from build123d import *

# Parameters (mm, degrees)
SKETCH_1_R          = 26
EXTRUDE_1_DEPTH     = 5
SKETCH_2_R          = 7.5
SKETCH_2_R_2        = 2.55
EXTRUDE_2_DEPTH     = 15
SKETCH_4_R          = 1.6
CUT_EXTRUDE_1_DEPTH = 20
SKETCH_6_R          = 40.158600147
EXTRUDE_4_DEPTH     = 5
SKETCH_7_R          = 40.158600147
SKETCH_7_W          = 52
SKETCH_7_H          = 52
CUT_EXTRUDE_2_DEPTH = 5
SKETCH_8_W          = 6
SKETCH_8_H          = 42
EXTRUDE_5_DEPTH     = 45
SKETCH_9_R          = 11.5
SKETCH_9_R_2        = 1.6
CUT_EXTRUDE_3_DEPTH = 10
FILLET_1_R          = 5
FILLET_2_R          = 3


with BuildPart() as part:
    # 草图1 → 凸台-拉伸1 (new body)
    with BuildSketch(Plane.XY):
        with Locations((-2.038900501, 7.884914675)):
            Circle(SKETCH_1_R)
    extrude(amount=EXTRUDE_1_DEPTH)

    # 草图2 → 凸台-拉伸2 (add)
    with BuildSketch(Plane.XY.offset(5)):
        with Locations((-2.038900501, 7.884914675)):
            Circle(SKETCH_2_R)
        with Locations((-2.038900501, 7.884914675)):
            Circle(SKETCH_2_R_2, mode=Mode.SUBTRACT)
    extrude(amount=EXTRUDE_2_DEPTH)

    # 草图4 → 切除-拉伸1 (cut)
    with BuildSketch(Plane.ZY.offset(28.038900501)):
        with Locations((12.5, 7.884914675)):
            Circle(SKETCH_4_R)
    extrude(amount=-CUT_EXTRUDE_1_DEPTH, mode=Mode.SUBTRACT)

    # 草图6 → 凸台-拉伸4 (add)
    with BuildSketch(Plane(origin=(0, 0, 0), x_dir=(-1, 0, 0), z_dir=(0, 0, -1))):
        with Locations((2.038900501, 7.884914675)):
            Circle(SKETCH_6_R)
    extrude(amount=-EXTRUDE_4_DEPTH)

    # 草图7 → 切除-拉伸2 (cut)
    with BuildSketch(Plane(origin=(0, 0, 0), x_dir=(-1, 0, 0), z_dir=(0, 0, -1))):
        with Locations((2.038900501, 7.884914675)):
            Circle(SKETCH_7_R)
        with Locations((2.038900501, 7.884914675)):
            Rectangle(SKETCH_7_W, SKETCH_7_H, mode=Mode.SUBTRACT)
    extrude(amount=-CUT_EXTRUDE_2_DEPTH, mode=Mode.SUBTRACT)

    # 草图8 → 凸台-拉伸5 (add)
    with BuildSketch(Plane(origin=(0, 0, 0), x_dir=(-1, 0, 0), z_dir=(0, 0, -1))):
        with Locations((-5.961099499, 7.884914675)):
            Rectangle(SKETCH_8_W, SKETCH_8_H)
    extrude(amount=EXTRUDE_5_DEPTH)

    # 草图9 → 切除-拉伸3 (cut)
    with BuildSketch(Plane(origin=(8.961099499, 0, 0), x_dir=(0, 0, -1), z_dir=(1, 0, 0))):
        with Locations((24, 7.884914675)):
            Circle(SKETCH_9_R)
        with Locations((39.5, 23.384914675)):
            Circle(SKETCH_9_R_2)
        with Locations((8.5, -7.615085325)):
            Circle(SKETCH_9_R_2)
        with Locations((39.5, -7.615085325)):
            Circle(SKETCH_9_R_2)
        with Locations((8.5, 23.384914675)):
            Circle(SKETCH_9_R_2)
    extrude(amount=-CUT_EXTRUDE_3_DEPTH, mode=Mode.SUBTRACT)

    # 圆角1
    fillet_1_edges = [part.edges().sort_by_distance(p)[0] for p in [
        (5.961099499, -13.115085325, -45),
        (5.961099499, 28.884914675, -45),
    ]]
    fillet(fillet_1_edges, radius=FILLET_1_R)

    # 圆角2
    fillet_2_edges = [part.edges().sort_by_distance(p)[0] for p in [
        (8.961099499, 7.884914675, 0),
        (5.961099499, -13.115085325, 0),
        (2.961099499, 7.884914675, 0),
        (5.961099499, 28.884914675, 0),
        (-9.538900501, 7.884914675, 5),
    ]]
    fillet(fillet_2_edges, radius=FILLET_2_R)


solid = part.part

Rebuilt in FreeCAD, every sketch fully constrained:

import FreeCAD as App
import Part
import Sketcher
from FreeCAD import Vector
Q = App.Units.Quantity


def edges_at(feature, points):
    """Names of the edges that pass closest to the given points."""
    edges = feature.Shape.Edges
    near = lambda p: min(range(len(edges)), key=lambda i: edges[i].distToShape(Part.Vertex(*p))[0])
    return sorted({f"Edge{near(p) + 1}" for p in points})

doc = App.newDocument("Part")
body = doc.addObject("PartDesign::Body", "Body")

# Sketch on XY plane
sketch1 = body.newObject("Sketcher::SketchObject", "Sketch")
sketch1.AttachmentSupport = (doc.getObject("XY_Plane"), [""])
sketch1.MapMode = "FlatFace"
sketch1.addGeometry(Part.Circle(Vector(-2, 8, 0), Vector(0, 0, 1), 26), False)
sketch1.addConstraint([
    Sketcher.Constraint("Diameter", 0, Q("52 mm")),
    Sketcher.Constraint("DistanceX", 0, 3, -1, 1, Q("2.038901 mm")),
    Sketcher.Constraint("DistanceY", -1, 1, 0, 3, Q("7.884915 mm")),
])
pad1 = body.newObject("PartDesign::Pad", "Pad")
pad1.Profile = sketch1
pad1.Length = 5

# Sketch on XY plane
sketch2 = body.newObject("Sketcher::SketchObject", "Sketch001")
sketch2.AttachmentSupport = (doc.getObject("XY_Plane"), [""])
sketch2.MapMode = "FlatFace"
sketch2.AttachmentOffset = App.Placement(Vector(0, 0, 5), App.Rotation())
sketch2.addGeometry([
    Part.Circle(Vector(-2, 7.9, 0), Vector(0, 0, 1), 7.5),
    Part.Circle(Vector(-2, 7.9, 0), Vector(0, 0, 1), 2.5),
], False)
sketch2.addConstraint([
    Sketcher.Constraint("Coincident", 1, 3, 0, 3),
    Sketcher.Constraint("Diameter", 0, Q("15 mm")),
    Sketcher.Constraint("Diameter", 1, Q("5.1 mm")),
    Sketcher.Constraint("DistanceX", 0, 3, -1, 1, Q("2.038901 mm")),
    Sketcher.Constraint("DistanceY", -1, 1, 0, 3, Q("7.884915 mm")),
])
pad2 = body.newObject("PartDesign::Pad", "Pad001")
pad2.Profile = sketch2
pad2.Length = 15

# Sketch on YZ plane
sketch3 = body.newObject("Sketcher::SketchObject", "Sketch002")
sketch3.AttachmentSupport = (doc.getObject("YZ_Plane"), [""])
sketch3.MapMode = "FlatFace"
sketch3.AttachmentOffset = App.Placement(Vector(0, 0, -28.038901), App.Rotation())
sketch3.addGeometry(Part.Circle(Vector(7.9, 12.5, 0), Vector(0, 0, 1), 1.6), False)
sketch3.addConstraint([
    Sketcher.Constraint("Diameter", 0, Q("3.2 mm")),
    Sketcher.Constraint("DistanceY", -1, 1, 0, 3, Q("12.5 mm")),
    Sketcher.Constraint("DistanceX", -1, 1, 0, 3, Q("7.884915 mm")),
])
pocket1 = body.newObject("PartDesign::Pocket", "Pocket")
pocket1.Profile = sketch3
pocket1.Length = 20
pocket1.Reversed = True

# Sketch on XY plane
sketch4 = body.newObject("Sketcher::SketchObject", "Sketch003")
sketch4.AttachmentSupport = (doc.getObject("XY_Plane"), [""])
sketch4.MapMode = "FlatFace"
sketch4.addGeometry(Part.Circle(Vector(-2, 8, 0), Vector(0, 0, 1), 40), False)
sketch4.addConstraint([
    Sketcher.Constraint("Diameter", 0, Q("80.3172 mm")),
    Sketcher.Constraint("DistanceX", 0, 3, -1, 1, Q("2.038901 mm")),
    Sketcher.Constraint("DistanceY", -1, 1, 0, 3, Q("7.884915 mm")),
])
pad3 = body.newObject("PartDesign::Pad", "Pad002")
pad3.Profile = sketch4
pad3.Length = 5

# Sketch on XY plane
sketch5 = body.newObject("Sketcher::SketchObject", "Sketch004")
sketch5.AttachmentSupport = (doc.getObject("XY_Plane"), [""])
sketch5.MapMode = "FlatFace"
sketch5.addGeometry([
    Part.Circle(Vector(-2, 8, 0), Vector(0, 0, 1), 40),  # 0
    Part.LineSegment(Vector(-28, -18, 0), Vector(24, -18, 0)),  # 1
    Part.LineSegment(Vector(24, -18, 0), Vector(24, 34, 0)),  # 2
    Part.LineSegment(Vector(24, 34, 0), Vector(-28, 34, 0)),  # 3
    Part.LineSegment(Vector(-28, 34, 0), Vector(-28, -18, 0)),  # 4
], False)
sketch5.addConstraint([
    Sketcher.Constraint("Coincident", 1, 2, 2, 1),
    Sketcher.Constraint("Coincident", 2, 2, 3, 1),
    Sketcher.Constraint("Coincident", 3, 2, 4, 1),
    Sketcher.Constraint("Coincident", 4, 2, 1, 1),
    Sketcher.Constraint("Horizontal", 1),
    Sketcher.Constraint("Vertical", 2),
    Sketcher.Constraint("Horizontal", 3),
    Sketcher.Constraint("Vertical", 4),
    Sketcher.Constraint("Equal", 3, 2),
    Sketcher.Constraint("DistanceX", 1, 1, 1, 2, Q("52 mm")),
    Sketcher.Constraint("DistanceX", 0, 3, 1, 2, Q("26 mm")),
    Sketcher.Constraint("DistanceY", 1, 2, 0, 3, Q("26 mm")),
    Sketcher.Constraint("Diameter", 0, Q("80.3172 mm")),
    Sketcher.Constraint("DistanceX", 0, 3, -1, 1, Q("2.038901 mm")),
    Sketcher.Constraint("DistanceY", -1, 1, 0, 3, Q("7.884915 mm")),
])
pocket2 = body.newObject("PartDesign::Pocket", "Pocket001")
pocket2.Profile = sketch5
pocket2.Length = 5
pocket2.Reversed = True

# Sketch on XY plane
sketch6 = body.newObject("Sketcher::SketchObject", "Sketch005")
sketch6.AttachmentSupport = (doc.getObject("XY_Plane"), [""])
sketch6.MapMode = "FlatFace"
sketch6.addGeometry([
    Part.LineSegment(Vector(9, 29, 0), Vector(9, -13, 0)),
    Part.LineSegment(Vector(9, -13, 0), Vector(3, -13, 0)),
    Part.LineSegment(Vector(3, -13, 0), Vector(3, 29, 0)),
    Part.LineSegment(Vector(3, 29, 0), Vector(9, 29, 0)),
], False)
sketch6.addConstraint([
    Sketcher.Constraint("Coincident", 0, 2, 1, 1),
    Sketcher.Constraint("Coincident", 1, 2, 2, 1),
    Sketcher.Constraint("Coincident", 2, 2, 3, 1),
    Sketcher.Constraint("Coincident", 3, 2, 0, 1),
    Sketcher.Constraint("Vertical", 0),
    Sketcher.Constraint("Horizontal", 1),
    Sketcher.Constraint("Vertical", 2),
    Sketcher.Constraint("Horizontal", 3),
    Sketcher.Constraint("DistanceX", 1, 2, 1, 1, Q("6 mm")),
    Sketcher.Constraint("DistanceY", 0, 2, 0, 1, Q("42 mm")),
    Sketcher.Constraint("DistanceX", -1, 1, 0, 2, Q("8.961099 mm")),
    Sketcher.Constraint("DistanceY", 0, 2, -1, 1, Q("13.115085 mm")),
])
pad4 = body.newObject("PartDesign::Pad", "Pad003")
pad4.Profile = sketch6
pad4.Length = 45
pad4.Reversed = True

# Sketch on YZ plane
sketch7 = body.newObject("Sketcher::SketchObject", "Sketch006")
sketch7.AttachmentSupport = (doc.getObject("YZ_Plane"), [""])
sketch7.MapMode = "FlatFace"
sketch7.AttachmentOffset = App.Placement(Vector(0, 0, 8.961099), App.Rotation())
sketch7.addGeometry([
    Part.Circle(Vector(7.9, -24, 0), Vector(0, 0, 1), 11.5),  # 0
    Part.Circle(Vector(23.4, -39.5, 0), Vector(0, 0, 1), 1.6),  # 1
    Part.Circle(Vector(-7.6, -8.5, 0), Vector(0, 0, 1), 1.6),  # 2
    Part.Circle(Vector(-7.6, -39.5, 0), Vector(0, 0, 1), 1.6),  # 3
    Part.Circle(Vector(23.4, -8.5, 0), Vector(0, 0, 1), 1.6),  # 4
], False)
sketch7.addConstraint([
    Sketcher.Constraint("Equal", 1, 2),
    Sketcher.Constraint("Equal", 2, 3),
    Sketcher.Constraint("Equal", 3, 4),
    Sketcher.Constraint("Horizontal", 1, 3, 3, 3),
    Sketcher.Constraint("Horizontal", 2, 3, 4, 3),
    Sketcher.Constraint("Vertical", 2, 3, 3, 3),
    Sketcher.Constraint("Vertical", 1, 3, 4, 3),
    Sketcher.Constraint("Diameter", 0, Q("23 mm")),
    Sketcher.Constraint("Diameter", 1, Q("3.2 mm")),
    Sketcher.Constraint("DistanceY", 0, 3, -1, 1, Q("24 mm")),
    Sketcher.Constraint("DistanceX", 2, 3, 1, 3, Q("31 mm")),
    Sketcher.Constraint("DistanceY", 1, 3, 2, 3, Q("31 mm")),
    Sketcher.Constraint("DistanceY", 1, 3, -1, 1, Q("39.5 mm")),
    Sketcher.Constraint("DistanceX", 0, 3, 1, 3, Q("15.5 mm")),
    Sketcher.Constraint("DistanceX", -1, 1, 0, 3, Q("7.884915 mm")),
])
pocket3 = body.newObject("PartDesign::Pocket", "Pocket002")
pocket3.Profile = sketch7
pocket3.Length = 10
doc.recompute()

fillet = body.newObject("PartDesign::Fillet", "Fillet")
fillet.Base = (pocket3, edges_at(pocket3, [(5.961, -13.115, -45), (5.961, 28.885, -45)]))
fillet.Radius = 5
doc.recompute()

fillet2 = body.newObject("PartDesign::Fillet", "Fillet001")
fillet2.Base = (fillet, edges_at(fillet, [
    (8.961, 7.885, 0),
    (5.961, -13.115, 0),
    (2.961, 7.885, 0),
    (5.961, 28.885, 0),
    (-9.539, 7.885, 5),
]))
fillet2.Radius = 3

doc.recompute()
